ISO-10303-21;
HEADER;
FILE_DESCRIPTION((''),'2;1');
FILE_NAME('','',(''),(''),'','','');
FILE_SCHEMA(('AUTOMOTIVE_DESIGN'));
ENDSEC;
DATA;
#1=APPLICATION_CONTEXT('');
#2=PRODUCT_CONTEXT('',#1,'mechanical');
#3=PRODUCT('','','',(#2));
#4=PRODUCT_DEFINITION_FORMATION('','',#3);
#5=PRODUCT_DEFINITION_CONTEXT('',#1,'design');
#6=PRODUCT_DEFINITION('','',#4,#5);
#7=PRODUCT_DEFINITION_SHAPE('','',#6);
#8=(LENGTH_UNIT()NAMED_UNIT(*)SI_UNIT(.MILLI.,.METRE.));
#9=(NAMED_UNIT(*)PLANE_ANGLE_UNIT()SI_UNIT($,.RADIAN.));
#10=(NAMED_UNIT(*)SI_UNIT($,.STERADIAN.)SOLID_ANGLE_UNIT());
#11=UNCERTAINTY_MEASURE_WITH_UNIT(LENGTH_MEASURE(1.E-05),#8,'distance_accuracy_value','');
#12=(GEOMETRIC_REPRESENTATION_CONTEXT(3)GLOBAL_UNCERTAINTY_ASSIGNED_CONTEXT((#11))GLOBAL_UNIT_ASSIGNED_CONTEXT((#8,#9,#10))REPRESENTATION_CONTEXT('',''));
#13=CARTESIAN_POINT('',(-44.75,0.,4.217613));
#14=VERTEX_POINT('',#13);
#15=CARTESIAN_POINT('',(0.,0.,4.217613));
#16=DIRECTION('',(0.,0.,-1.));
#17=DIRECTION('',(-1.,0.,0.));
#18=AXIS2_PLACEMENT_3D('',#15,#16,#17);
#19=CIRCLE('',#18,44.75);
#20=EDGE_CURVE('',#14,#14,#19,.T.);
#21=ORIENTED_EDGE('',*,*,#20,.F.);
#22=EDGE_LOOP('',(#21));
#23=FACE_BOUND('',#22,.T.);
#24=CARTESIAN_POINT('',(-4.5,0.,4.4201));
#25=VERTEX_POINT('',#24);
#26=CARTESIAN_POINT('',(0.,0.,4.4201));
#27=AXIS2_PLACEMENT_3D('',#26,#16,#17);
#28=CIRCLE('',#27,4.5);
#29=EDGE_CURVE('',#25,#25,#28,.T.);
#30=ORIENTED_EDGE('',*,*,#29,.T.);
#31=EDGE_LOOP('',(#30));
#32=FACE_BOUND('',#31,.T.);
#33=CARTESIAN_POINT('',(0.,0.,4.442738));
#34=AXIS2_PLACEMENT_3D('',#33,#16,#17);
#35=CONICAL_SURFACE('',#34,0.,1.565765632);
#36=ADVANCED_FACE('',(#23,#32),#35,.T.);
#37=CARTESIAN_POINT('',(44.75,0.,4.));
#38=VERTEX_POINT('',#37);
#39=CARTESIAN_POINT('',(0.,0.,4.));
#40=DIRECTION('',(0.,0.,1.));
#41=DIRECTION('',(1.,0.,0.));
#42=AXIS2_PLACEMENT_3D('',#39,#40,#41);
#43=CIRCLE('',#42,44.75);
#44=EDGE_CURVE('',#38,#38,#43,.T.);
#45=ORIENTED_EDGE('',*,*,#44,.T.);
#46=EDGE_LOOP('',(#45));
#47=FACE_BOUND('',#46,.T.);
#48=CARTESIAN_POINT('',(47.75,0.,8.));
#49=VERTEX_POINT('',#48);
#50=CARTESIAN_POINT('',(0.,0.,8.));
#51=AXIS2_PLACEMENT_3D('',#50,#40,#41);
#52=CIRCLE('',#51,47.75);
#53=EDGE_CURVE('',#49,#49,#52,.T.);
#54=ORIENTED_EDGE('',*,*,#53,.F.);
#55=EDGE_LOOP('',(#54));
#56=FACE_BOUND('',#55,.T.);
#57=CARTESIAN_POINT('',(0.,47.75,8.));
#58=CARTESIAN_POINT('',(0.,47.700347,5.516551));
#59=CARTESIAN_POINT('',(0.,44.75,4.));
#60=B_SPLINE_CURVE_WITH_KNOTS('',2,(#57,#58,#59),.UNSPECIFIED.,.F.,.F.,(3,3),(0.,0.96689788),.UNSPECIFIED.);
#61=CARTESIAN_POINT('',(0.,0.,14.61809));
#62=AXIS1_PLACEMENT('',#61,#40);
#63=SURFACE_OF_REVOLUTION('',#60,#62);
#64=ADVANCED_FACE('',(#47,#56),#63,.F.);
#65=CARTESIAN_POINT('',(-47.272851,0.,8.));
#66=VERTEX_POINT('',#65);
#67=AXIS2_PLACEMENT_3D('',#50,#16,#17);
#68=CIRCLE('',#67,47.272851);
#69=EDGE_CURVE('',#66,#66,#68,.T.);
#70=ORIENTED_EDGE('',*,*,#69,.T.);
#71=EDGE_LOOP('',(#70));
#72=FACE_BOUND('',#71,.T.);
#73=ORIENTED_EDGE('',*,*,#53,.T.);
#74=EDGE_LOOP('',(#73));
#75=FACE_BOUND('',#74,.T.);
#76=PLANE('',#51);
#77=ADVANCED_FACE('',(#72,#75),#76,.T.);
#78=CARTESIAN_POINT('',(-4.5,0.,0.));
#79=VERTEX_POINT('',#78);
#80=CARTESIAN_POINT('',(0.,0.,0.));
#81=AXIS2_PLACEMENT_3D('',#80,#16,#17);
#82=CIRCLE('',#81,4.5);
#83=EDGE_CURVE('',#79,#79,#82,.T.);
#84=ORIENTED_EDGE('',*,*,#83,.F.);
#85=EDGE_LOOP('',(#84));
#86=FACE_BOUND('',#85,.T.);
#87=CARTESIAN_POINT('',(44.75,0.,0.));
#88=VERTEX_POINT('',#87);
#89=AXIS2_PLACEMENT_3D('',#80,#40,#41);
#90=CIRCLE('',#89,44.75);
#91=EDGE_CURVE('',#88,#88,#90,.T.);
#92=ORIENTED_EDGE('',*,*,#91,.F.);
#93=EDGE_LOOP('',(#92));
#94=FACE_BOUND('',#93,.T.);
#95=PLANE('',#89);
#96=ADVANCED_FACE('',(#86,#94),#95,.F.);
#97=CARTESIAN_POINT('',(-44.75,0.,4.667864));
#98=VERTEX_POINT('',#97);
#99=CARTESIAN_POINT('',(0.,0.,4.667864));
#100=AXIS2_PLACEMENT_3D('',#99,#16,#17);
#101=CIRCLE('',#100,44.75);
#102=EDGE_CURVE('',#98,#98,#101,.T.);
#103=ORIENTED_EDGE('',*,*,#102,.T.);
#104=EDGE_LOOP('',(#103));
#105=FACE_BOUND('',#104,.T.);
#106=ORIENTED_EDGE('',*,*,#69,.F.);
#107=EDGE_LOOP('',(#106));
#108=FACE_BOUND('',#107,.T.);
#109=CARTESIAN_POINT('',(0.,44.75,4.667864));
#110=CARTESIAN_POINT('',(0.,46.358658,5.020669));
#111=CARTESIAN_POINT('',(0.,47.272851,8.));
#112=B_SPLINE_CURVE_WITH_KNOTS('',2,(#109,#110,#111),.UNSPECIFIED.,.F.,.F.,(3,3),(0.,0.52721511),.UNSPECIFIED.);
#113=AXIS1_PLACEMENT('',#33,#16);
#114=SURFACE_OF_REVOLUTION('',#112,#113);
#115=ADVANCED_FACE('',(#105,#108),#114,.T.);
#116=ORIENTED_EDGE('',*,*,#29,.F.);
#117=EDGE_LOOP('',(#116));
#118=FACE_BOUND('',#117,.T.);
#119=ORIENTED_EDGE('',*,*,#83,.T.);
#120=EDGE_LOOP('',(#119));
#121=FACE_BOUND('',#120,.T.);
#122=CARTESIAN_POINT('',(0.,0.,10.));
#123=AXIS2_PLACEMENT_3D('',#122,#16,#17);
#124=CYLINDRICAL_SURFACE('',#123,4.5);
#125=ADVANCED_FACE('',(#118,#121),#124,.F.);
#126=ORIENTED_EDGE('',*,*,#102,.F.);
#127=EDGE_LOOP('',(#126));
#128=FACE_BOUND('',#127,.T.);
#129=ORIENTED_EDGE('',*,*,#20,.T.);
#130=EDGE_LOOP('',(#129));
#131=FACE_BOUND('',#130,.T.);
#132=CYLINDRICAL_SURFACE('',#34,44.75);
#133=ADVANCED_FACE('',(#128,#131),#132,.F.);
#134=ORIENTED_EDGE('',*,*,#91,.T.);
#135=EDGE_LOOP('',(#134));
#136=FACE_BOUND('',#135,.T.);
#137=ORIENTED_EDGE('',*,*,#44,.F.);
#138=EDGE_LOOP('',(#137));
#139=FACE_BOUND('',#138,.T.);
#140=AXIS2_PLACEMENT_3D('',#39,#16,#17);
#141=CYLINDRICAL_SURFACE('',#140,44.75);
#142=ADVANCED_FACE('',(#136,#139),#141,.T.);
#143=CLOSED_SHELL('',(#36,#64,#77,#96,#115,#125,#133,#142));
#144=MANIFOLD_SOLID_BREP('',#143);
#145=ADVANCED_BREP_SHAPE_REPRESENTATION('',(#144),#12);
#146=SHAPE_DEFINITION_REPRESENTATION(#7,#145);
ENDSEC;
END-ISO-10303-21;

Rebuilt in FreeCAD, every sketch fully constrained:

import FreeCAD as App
import Part
import Sketcher

V = App.Vector

doc = App.newDocument("Part")
body = doc.addObject("PartDesign::Body", "Body")

sketch1 = doc.addObject("Sketcher::SketchObject", "Sketch")
body.addObject(sketch1)
sketch1.AttachmentSupport = (doc.XY_Plane, [""])
sketch1.MapMode = "FlatFace"
sketch1.addGeometry(Part.Circle(V(0, 0, 0), V(0, 0, 1), 44.75), False)
sketch1.addConstraint(Sketcher.Constraint("Coincident", 0, 3, -1, 1))
sketch1.addConstraint(Sketcher.Constraint("Diameter", 0, 89.5))
pad1 = doc.addObject("PartDesign::Pad", "Pad")
body.addObject(pad1)
pad1.Profile = sketch1
pad1.Length = 4

sketch2 = doc.addObject("Sketcher::SketchObject", "Sketch001")
body.addObject(sketch2)
sketch2.AttachmentSupport = (doc.XY_Plane, [""])
sketch2.MapMode = "FlatFace"
sketch2.AttachmentOffset = App.Placement(V(0, 0, 4), App.Rotation())
sketch2.addGeometry(Part.Circle(V(0, 0, 0), V(0, 0, 1), 47.75), False)
sketch2.addConstraint(Sketcher.Constraint("Coincident", 0, 3, -1, 1))
sketch2.addConstraint(Sketcher.Constraint("Diameter", 0, 95.5))
pad2 = doc.addObject("PartDesign::Pad", "Pad001")
body.addObject(pad2)
pad2.Profile = sketch2
pad2.Length = 4

sketch3 = doc.addObject("Sketcher::SketchObject", "Sketch002")
body.addObject(sketch3)
sketch3.AttachmentSupport = (doc.YZ_Plane, [""])
sketch3.MapMode = "FlatFace"
sketch3.addGeometry(Part.LineSegment(V(44.75, 4, 0), V(47.75, 4, 0)), False)
sketch3.addGeometry(Part.LineSegment(V(47.75, 4, 0), V(47.75, 8, 0)), False)
sketch3.addGeometry(Part.BSplineCurve([V(44.75, 4, 0), V(47.700347, 5.516551, 0), V(47.75, 8, 0)], [3, 3], [0, 0.96689788], False, 2, [1, 1, 1], False), False)
sketch3.addConstraint(Sketcher.Constraint("Block", 2))
sketch3.addConstraint(Sketcher.Constraint("Coincident", 0, 2, 1, 1))
sketch3.addConstraint(Sketcher.Constraint("Coincident", 1, 2, 2, 2))
sketch3.addConstraint(Sketcher.Constraint("Coincident", 2, 1, 0, 1))
sketch3.addConstraint(Sketcher.Constraint("Horizontal", 0))
sketch3.addConstraint(Sketcher.Constraint("Vertical", 1))
groove = doc.addObject("PartDesign::Groove", "Groove")
body.addObject(groove)
groove.Profile = sketch3
groove.ReferenceAxis = (sketch3, ["V_Axis"])
groove.Angle = 360

sketch4 = doc.addObject("Sketcher::SketchObject", "Sketch003")
body.addObject(sketch4)
sketch4.AttachmentSupport = (doc.YZ_Plane, [""])
sketch4.MapMode = "FlatFace"
sketch4.addGeometry(Part.LineSegment(V(44.75, 4.217613, 0), V(44.75, 4.667864, 0)), False)
sketch4.addGeometry(Part.BSplineCurve([V(47.272851, 8, 0), V(46.358658, 5.020669, 0), V(44.75, 4.667864, 0)], [3, 3], [0, 0.52721511], False, 2, [1, 1, 1], False), False)
sketch4.addGeometry(Part.LineSegment(V(47.272851, 8, 0), V(0, 8, 0)), False)
sketch4.addGeometry(Part.LineSegment(V(0, 8, 0), V(0, 4.442738, 0)), False)
sketch4.addGeometry(Part.LineSegment(V(0, 4.442738, 0), V(44.75, 4.217613, 0)), False)
sketch4.addConstraint(Sketcher.Constraint("Block", 1))
sketch4.addConstraint(Sketcher.Constraint("Coincident", 0, 2, 1, 2))
sketch4.addConstraint(Sketcher.Constraint("Coincident", 1, 1, 2, 1))
sketch4.addConstraint(Sketcher.Constraint("Coincident", 2, 2, 3, 1))
sketch4.addConstraint(Sketcher.Constraint("Coincident", 3, 2, 4, 1))
sketch4.addConstraint(Sketcher.Constraint("Coincident", 4, 2, 0, 1))
sketch4.addConstraint(Sketcher.Constraint("Vertical", 0))
sketch4.addConstraint(Sketcher.Constraint("Horizontal", 2))
sketch4.addConstraint(Sketcher.Constraint("Vertical", 3))
sketch4.addConstraint(Sketcher.Constraint("PointOnObject", 2, 2, -2))
sketch4.addConstraint(Sketcher.Constraint("DistanceY", 0, 1, 0, 2, 0.450251))
sketch4.addConstraint(Sketcher.Constraint("DistanceY", 3, 2, 3, 1, 3.557262))
groove2 = doc.addObject("PartDesign::Groove", "Groove001")
body.addObject(groove2)
groove2.Profile = sketch4
groove2.ReferenceAxis = (sketch4, ["V_Axis"])
groove2.Angle = 360

sketch5 = doc.addObject("Sketcher::SketchObject", "Sketch004")
body.addObject(sketch5)
sketch5.AttachmentSupport = (doc.XY_Plane, [""])
sketch5.MapMode = "FlatFace"
sketch5.addGeometry(Part.Circle(V(0, 0, 0), V(0, 0, 1), 4.5), False)
sketch5.addConstraint(Sketcher.Constraint("Coincident", 0, 3, -1, 1))
sketch5.addConstraint(Sketcher.Constraint("Diameter", 0, 9.0))
pocket1 = doc.addObject("PartDesign::Pocket", "Pocket")
body.addObject(pocket1)
pocket1.Profile = sketch5
pocket1.Length = 10
pocket1.Reversed = True

doc.recompute()
